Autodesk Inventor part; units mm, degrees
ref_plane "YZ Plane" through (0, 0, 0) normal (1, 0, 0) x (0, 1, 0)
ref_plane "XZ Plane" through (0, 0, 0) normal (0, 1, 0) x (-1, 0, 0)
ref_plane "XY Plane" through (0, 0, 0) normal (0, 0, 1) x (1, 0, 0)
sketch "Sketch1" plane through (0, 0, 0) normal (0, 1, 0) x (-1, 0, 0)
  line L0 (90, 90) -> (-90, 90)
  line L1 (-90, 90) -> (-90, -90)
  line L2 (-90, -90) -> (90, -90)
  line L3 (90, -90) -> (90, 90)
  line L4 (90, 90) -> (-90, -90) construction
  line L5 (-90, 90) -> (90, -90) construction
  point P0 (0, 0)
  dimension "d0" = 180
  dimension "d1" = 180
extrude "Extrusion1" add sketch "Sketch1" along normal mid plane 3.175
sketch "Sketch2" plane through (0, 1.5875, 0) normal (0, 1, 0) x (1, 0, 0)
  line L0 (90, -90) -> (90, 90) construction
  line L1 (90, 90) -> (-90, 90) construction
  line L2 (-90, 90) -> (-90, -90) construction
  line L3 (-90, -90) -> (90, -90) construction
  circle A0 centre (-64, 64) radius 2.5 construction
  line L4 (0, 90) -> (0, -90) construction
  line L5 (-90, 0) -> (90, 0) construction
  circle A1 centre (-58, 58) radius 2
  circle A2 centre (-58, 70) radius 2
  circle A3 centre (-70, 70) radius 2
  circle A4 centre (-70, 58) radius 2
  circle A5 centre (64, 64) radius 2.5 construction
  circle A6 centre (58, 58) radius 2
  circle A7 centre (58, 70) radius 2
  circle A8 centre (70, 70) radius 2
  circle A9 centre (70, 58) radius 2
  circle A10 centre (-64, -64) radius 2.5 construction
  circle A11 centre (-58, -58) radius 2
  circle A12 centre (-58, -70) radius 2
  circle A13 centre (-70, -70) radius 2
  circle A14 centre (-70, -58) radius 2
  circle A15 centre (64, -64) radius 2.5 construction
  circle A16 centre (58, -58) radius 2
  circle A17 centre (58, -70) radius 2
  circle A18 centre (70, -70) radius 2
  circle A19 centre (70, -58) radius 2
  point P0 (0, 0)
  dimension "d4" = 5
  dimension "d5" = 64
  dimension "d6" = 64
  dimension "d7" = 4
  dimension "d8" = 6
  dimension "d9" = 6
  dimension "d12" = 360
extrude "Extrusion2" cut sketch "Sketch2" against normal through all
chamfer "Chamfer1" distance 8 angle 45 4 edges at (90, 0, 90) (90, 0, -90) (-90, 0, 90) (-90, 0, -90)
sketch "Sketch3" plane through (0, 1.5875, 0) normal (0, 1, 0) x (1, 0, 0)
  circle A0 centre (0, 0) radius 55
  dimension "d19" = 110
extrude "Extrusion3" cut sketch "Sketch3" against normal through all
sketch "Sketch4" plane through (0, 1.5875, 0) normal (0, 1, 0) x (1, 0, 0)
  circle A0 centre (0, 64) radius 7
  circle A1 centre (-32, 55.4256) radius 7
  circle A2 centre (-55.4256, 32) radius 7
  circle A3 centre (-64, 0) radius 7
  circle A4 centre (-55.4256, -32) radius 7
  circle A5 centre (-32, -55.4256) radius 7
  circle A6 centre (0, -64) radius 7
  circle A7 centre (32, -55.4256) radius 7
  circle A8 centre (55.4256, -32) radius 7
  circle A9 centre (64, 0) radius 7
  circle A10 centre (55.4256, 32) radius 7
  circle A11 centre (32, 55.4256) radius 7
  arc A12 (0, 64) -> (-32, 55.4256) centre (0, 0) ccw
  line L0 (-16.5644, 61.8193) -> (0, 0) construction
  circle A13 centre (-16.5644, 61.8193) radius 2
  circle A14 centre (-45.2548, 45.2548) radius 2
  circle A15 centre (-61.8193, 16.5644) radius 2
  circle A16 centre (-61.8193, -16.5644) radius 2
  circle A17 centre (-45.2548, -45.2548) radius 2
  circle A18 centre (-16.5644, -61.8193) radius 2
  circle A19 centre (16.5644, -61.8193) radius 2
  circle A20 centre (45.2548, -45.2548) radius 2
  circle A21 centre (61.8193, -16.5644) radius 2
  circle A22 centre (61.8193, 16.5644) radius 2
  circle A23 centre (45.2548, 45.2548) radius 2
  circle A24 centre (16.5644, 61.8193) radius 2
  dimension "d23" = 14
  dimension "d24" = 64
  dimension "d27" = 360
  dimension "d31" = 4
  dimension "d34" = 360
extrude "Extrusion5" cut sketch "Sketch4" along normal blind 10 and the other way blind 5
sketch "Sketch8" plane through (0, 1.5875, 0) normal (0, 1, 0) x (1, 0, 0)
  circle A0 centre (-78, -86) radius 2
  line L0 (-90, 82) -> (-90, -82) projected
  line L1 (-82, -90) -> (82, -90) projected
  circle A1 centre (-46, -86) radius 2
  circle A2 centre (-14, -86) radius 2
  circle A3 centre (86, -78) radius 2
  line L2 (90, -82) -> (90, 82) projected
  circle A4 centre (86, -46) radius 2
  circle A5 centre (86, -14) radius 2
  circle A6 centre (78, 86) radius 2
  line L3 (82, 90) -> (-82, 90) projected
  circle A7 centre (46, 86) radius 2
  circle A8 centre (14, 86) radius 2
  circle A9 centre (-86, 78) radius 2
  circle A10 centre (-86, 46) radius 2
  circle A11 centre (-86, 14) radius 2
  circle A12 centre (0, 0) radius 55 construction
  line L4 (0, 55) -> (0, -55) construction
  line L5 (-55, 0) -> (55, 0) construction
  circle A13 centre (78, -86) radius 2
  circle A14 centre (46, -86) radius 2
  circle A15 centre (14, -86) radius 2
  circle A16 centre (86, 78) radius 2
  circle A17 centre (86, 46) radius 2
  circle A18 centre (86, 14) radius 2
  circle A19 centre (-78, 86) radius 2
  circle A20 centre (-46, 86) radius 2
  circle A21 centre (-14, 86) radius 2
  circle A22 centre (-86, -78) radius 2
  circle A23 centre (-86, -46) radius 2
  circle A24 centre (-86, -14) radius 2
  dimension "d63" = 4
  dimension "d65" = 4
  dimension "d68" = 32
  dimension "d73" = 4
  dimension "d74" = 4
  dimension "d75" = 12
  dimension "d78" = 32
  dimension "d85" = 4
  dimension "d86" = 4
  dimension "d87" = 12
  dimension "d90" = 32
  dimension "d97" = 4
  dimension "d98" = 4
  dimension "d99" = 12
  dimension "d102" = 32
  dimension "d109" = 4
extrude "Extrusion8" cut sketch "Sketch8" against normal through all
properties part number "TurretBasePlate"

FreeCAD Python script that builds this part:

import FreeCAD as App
import Part
import Sketcher

V = App.Vector


def edges_at(feature, points):
    """Names of the edges that pass closest to the given points."""
    edges = feature.Shape.Edges
    near = lambda p: min(range(len(edges)), key=lambda i: edges[i].distToShape(Part.Vertex(*p))[0])
    return sorted({f"Edge{near(p) + 1}" for p in points})

doc = App.newDocument("Part")
body = doc.addObject("PartDesign::Body", "Body")

# Sketch on XZ plane
sketch1 = body.newObject("Sketcher::SketchObject", "Sketch")
sketch1.AttachmentSupport = (doc.getObject("XZ_Plane"), [""])
sketch1.MapMode = "FlatFace"
sketch1.addGeometry(Part.LineSegment(V(-90, -90, 0), V(-90, 90, 0)), False)
sketch1.addGeometry(Part.LineSegment(V(-90, 90, 0), V(90, 90, 0)), False)
sketch1.addGeometry(Part.LineSegment(V(90, 90, 0), V(90, -90, 0)), False)
sketch1.addGeometry(Part.LineSegment(V(90, -90, 0), V(-90, -90, 0)), False)
sketch1.addConstraint(Sketcher.Constraint("Coincident", 0, 2, 1, 1))
sketch1.addConstraint(Sketcher.Constraint("Coincident", 1, 2, 2, 1))
sketch1.addConstraint(Sketcher.Constraint("Coincident", 2, 2, 3, 1))
sketch1.addConstraint(Sketcher.Constraint("Coincident", 3, 2, 0, 1))
sketch1.addConstraint(Sketcher.Constraint("Vertical", 0))
sketch1.addConstraint(Sketcher.Constraint("Horizontal", 1))
sketch1.addConstraint(Sketcher.Constraint("Vertical", 2))
sketch1.addConstraint(Sketcher.Constraint("Horizontal", 3))
sketch1.addConstraint(Sketcher.Constraint("Symmetric", 0, 2, 2, 2, -1, 1))
sketch1.addConstraint(Sketcher.Constraint("Equal", 3, 0))
sketch1.addConstraint(Sketcher.Constraint("DistanceX", 1, 1, 1, 2, 180.0))
pad1 = body.newObject("PartDesign::Pad", "Pad")
pad1.Profile = sketch1
pad1.Length = 3.175
pad1.Midplane = True

# Sketch on XZ plane
sketch2 = body.newObject("Sketcher::SketchObject", "Sketch001")
sketch2.AttachmentSupport = (doc.getObject("XZ_Plane"), [""])
sketch2.MapMode = "FlatFace"
sketch2.AttachmentOffset = App.Placement(V(0, 0, -1.5875), App.Rotation())
sketch2.addGeometry(Part.Circle(V(-58, -58, 0), V(0, 0, 1), 2), False)
sketch2.addGeometry(Part.Circle(V(-58, -70, 0), V(0, 0, 1), 2), False)
sketch2.addGeometry(Part.Circle(V(-70, -70, 0), V(0, 0, 1), 2), False)
sketch2.addGeometry(Part.Circle(V(-70, -58, 0), V(0, 0, 1), 2), False)
sketch2.addGeometry(Part.Circle(V(58, -58, 0), V(0, 0, 1), 2), False)
sketch2.addGeometry(Part.Circle(V(58, -70, 0), V(0, 0, 1), 2), False)
sketch2.addGeometry(Part.Circle(V(70, -70, 0), V(0, 0, 1), 2), False)
sketch2.addGeometry(Part.Circle(V(70, -58, 0), V(0, 0, 1), 2), False)
sketch2.addGeometry(Part.Circle(V(-58, 58, 0), V(0, 0, 1), 2), False)
sketch2.addGeometry(Part.Circle(V(-58, 70, 0), V(0, 0, 1), 2), False)
sketch2.addGeometry(Part.Circle(V(-70, 70, 0), V(0, 0, 1), 2), False)
sketch2.addGeometry(Part.Circle(V(-70, 58, 0), V(0, 0, 1), 2), False)
sketch2.addGeometry(Part.Circle(V(58, 58, 0), V(0, 0, 1), 2), False)
sketch2.addGeometry(Part.Circle(V(58, 70, 0), V(0, 0, 1), 2), False)
sketch2.addGeometry(Part.Circle(V(70, 70, 0), V(0, 0, 1), 2), False)
sketch2.addGeometry(Part.Circle(V(70, 58, 0), V(0, 0, 1), 2), False)
sketch2.addConstraint(Sketcher.Constraint("Equal", 0, 1))
sketch2.addConstraint(Sketcher.Constraint("Equal", 1, 2))
sketch2.addConstraint(Sketcher.Constraint("Equal", 2, 3))
sketch2.addConstraint(Sketcher.Constraint("Equal", 3, 4))
sketch2.addConstraint(Sketcher.Constraint("Equal", 4, 5))
sketch2.addConstraint(Sketcher.Constraint("Equal", 5, 6))
sketch2.addConstraint(Sketcher.Constraint("Equal", 6, 7))
sketch2.addConstraint(Sketcher.Constraint("Equal", 7, 8))
sketch2.addConstraint(Sketcher.Constraint("Equal", 8, 9))
sketch2.addConstraint(Sketcher.Constraint("Equal", 9, 10))
sketch2.addConstraint(Sketcher.Constraint("Equal", 10, 11))
sketch2.addConstraint(Sketcher.Constraint("Equal", 11, 12))
sketch2.addConstraint(Sketcher.Constraint("Equal", 12, 13))
sketch2.addConstraint(Sketcher.Constraint("Equal", 13, 14))
sketch2.addConstraint(Sketcher.Constraint("Equal", 14, 15))
sketch2.addConstraint(Sketcher.Constraint("Symmetric", 4, 3, 8, 3, -1, 1))
sketch2.addConstraint(Sketcher.Constraint("Symmetric", 5, 3, 9, 3, -1, 1))
sketch2.addConstraint(Sketcher.Constraint("Symmetric", 6, 3, 10, 3, -1, 1))
sketch2.addConstraint(Sketcher.Constraint("Symmetric", 7, 3, 11, 3, -1, 1))
sketch2.addConstraint(Sketcher.Constraint("Symmetric", 0, 3, 12, 3, -1, 1))
sketch2.addConstraint(Sketcher.Constraint("Symmetric", 1, 3, 13, 3, -1, 1))
sketch2.addConstraint(Sketcher.Constraint("Symmetric", 2, 3, 14, 3, -1, 1))
sketch2.addConstraint(Sketcher.Constraint("Symmetric", 3, 3, 15, 3, -1, 1))
sketch2.addConstraint(Sketcher.Constraint("Symmetric", 0, 3, 4, 3, -2))
sketch2.addConstraint(Sketcher.Constraint("Symmetric", 1, 3, 5, 3, -2))
sketch2.addConstraint(Sketcher.Constraint("Symmetric", 2, 3, 6, 3, -2))
sketch2.addConstraint(Sketcher.Constraint("Symmetric", 3, 3, 7, 3, -2))
sketch2.addConstraint(Sketcher.Constraint("Horizontal", 1, 3, 2, 3))
sketch2.addConstraint(Sketcher.Constraint("Horizontal", 0, 3, 3, 3))
sketch2.addConstraint(Sketcher.Constraint("Vertical", 0, 3, 1, 3))
sketch2.addConstraint(Sketcher.Constraint("Vertical", 2, 3, 3, 3))
sketch2.addConstraint(Sketcher.Constraint("Diameter", 0, 4.0))
sketch2.addConstraint(Sketcher.Constraint("DistanceX", 0, 3, -1, 1, 58.0))
sketch2.addConstraint(Sketcher.Constraint("DistanceY", 0, 3, -1, 1, 58.0))
sketch2.addConstraint(Sketcher.Constraint("DistanceY", 1, 3, -1, 1, 70.0))
sketch2.addConstraint(Sketcher.Constraint("DistanceX", 2, 3, -1, 1, 70.0))
pocket1 = body.newObject("PartDesign::Pocket", "Pocket")
pocket1.Profile = sketch2
pocket1.Type = "ThroughAll"
pocket1.Reversed = True
doc.recompute()

chamfer = body.newObject("PartDesign::Chamfer", "Chamfer")
chamfer.Base = (pocket1, edges_at(pocket1, [
    (90, 0, 90),
    (90, 0, -90),
    (-90, 0, 90),
    (-90, 0, -90),
]))
chamfer.Size = 8

# Sketch on XZ plane
sketch3 = body.newObject("Sketcher::SketchObject", "Sketch002")
sketch3.AttachmentSupport = (doc.getObject("XZ_Plane"), [""])
sketch3.MapMode = "FlatFace"
sketch3.AttachmentOffset = App.Placement(V(0, 0, -1.5875), App.Rotation())
sketch3.addGeometry(Part.Circle(V(0, 0, 0), V(0, 0, 1), 55), False)
sketch3.addConstraint(Sketcher.Constraint("Coincident", 0, 3, -1, 1))
sketch3.addConstraint(Sketcher.Constraint("Diameter", 0, 110.0))
pocket2 = body.newObject("PartDesign::Pocket", "Pocket001")
pocket2.Profile = sketch3
pocket2.Type = "ThroughAll"
pocket2.Reversed = True

# Sketch on XZ plane
sketch4 = body.newObject("Sketcher::SketchObject", "Sketch003")
sketch4.AttachmentSupport = (doc.getObject("XZ_Plane"), [""])
sketch4.MapMode = "FlatFace"
sketch4.AttachmentOffset = App.Placement(V(0, 0, -1.5875), App.Rotation())
sketch4.addGeometry(Part.Circle(V(0, -64, 0), V(0, 0, 1), 7), False)
sketch4.addGeometry(Part.Circle(V(-32, -55.4, 0), V(0, 0, 1), 7), False)
sketch4.addGeometry(Part.Circle(V(-16.6, -61.8, 0), V(0, 0, 1), 2), False)
sketch4.addGeometry(Part.Circle(V(-55.4, -32, 0), V(0, 0, 1), 7), False)
sketch4.addGeometry(Part.Circle(V(-64, 0, 0), V(0, 0, 1), 7), False)
sketch4.addGeometry(Part.Circle(V(-55.4, 32, 0), V(0, 0, 1), 7), False)
sketch4.addGeometry(Part.Circle(V(-32, 55.4, 0), V(0, 0, 1), 7), False)
sketch4.addGeometry(Part.Circle(V(0, 64, 0), V(0, 0, 1), 7), False)
sketch4.addGeometry(Part.Circle(V(32, 55.4, 0), V(0, 0, 1), 7), False)
sketch4.addGeometry(Part.Circle(V(55.4, 32, 0), V(0, 0, 1), 7), False)
sketch4.addGeometry(Part.Circle(V(64, 0, 0), V(0, 0, 1), 7), False)
sketch4.addGeometry(Part.Circle(V(55.4, -32, 0), V(0, 0, 1), 7), False)
sketch4.addGeometry(Part.Circle(V(32, -55.4, 0), V(0, 0, 1), 7), False)
sketch4.addGeometry(Part.Circle(V(-45.3, -45.3, 0), V(0, 0, 1), 2), False)
sketch4.addGeometry(Part.Circle(V(-61.8, -16.6, 0), V(0, 0, 1), 2), False)
sketch4.addGeometry(Part.Circle(V(-61.8, 16.6, 0), V(0, 0, 1), 2), False)
sketch4.addGeometry(Part.Circle(V(-45.3, 45.3, 0), V(0, 0, 1), 2), False)
sketch4.addGeometry(Part.Circle(V(-16.6, 61.8, 0), V(0, 0, 1), 2), False)
sketch4.addGeometry(Part.Circle(V(16.6, 61.8, 0), V(0, 0, 1), 2), False)
sketch4.addGeometry(Part.Circle(V(45.3, 45.3, 0), V(0, 0, 1), 2), False)
sketch4.addGeometry(Part.Circle(V(61.8, 16.6, 0), V(0, 0, 1), 2), False)
sketch4.addGeometry(Part.Circle(V(61.8, -16.6, 0), V(0, 0, 1), 2), False)
sketch4.addGeometry(Part.Circle(V(45.3, -45.3, 0), V(0, 0, 1), 2), False)
sketch4.addGeometry(Part.Circle(V(16.6, -61.8, 0), V(0, 0, 1), 2), False)
sketch4.addConstraint(Sketcher.Constraint("Equal", 0, 1))
sketch4.addConstraint(Sketcher.Constraint("Equal", 1, 3))
sketch4.addConstraint(Sketcher.Constraint("Equal", 3, 4))
sketch4.addConstraint(Sketcher.Constraint("Equal", 4, 5))
sketch4.addConstraint(Sketcher.Constraint("Equal", 5, 6))
sketch4.addConstraint(Sketcher.Constraint("Equal", 6, 7))
sketch4.addConstraint(Sketcher.Constraint("Equal", 7, 8))
sketch4.addConstraint(Sketcher.Constraint("Equal", 8, 9))
sketch4.addConstraint(Sketcher.Constraint("Equal", 9, 10))
sketch4.addConstraint(Sketcher.Constraint("Equal", 10, 11))
sketch4.addConstraint(Sketcher.Constraint("Equal", 11, 12))
sketch4.addConstraint(Sketcher.Constraint("Equal", 2, 13))
sketch4.addConstraint(Sketcher.Constraint("Equal", 13, 14))
sketch4.addConstraint(Sketcher.Constraint("Equal", 14, 15))
sketch4.addConstraint(Sketcher.Constraint("Equal", 15, 16))
sketch4.addConstraint(Sketcher.Constraint("Equal", 16, 17))
sketch4.addConstraint(Sketcher.Constraint("Equal", 17, 18))
sketch4.addConstraint(Sketcher.Constraint("Equal", 18, 19))
sketch4.addConstraint(Sketcher.Constraint("Equal", 19, 20))
sketch4.addConstraint(Sketcher.Constraint("Equal", 20, 21))
sketch4.addConstraint(Sketcher.Constraint("Equal", 21, 22))
sketch4.addConstraint(Sketcher.Constraint("Equal", 22, 23))
sketch4.addConstraint(Sketcher.Constraint("Symmetric", 0, 3, 7, 3, -1, 1))
sketch4.addConstraint(Sketcher.Constraint("Symmetric", 1, 3, 8, 3, -1, 1))
sketch4.addConstraint(Sketcher.Constraint("Symmetric", 3, 3, 9, 3, -1, 1))
sketch4.addConstraint(Sketcher.Constraint("Symmetric", 4, 3, 10, 3, -1, 1))
sketch4.addConstraint(Sketcher.Constraint("Symmetric", 5, 3, 11, 3, -1, 1))
sketch4.addConstraint(Sketcher.Constraint("Symmetric", 6, 3, 12, 3, -1, 1))
sketch4.addConstraint(Sketcher.Constraint("Symmetric", 2, 3, 18, 3, -1, 1))
sketch4.addConstraint(Sketcher.Constraint("Symmetric", 13, 3, 19, 3, -1, 1))
sketch4.addConstraint(Sketcher.Constraint("Symmetric", 14, 3, 20, 3, -1, 1))
sketch4.addConstraint(Sketcher.Constraint("Symmetric", 15, 3, 21, 3, -1, 1))
sketch4.addConstraint(Sketcher.Constraint("Symmetric", 16, 3, 22, 3, -1, 1))
sketch4.addConstraint(Sketcher.Constraint("Symmetric", 17, 3, 23, 3, -1, 1))
sketch4.addConstraint(Sketcher.Constraint("Symmetric", 6, 3, 8, 3, -2))
sketch4.addConstraint(Sketcher.Constraint("Symmetric", 5, 3, 9, 3, -2))
sketch4.addConstraint(Sketcher.Constraint("Symmetric", 17, 3, 18, 3, -2))
sketch4.addConstraint(Sketcher.Constraint("Symmetric", 16, 3, 19, 3, -2))
sketch4.addConstraint(Sketcher.Constraint("Symmetric", 15, 3, 20, 3, -2))
sketch4.addConstraint(Sketcher.Constraint("PointOnObject", 0, 3, -2))
sketch4.addConstraint(Sketcher.Constraint("PointOnObject", 4, 3, -1))
sketch4.addConstraint(Sketcher.Constraint("Diameter", 0, 14.0))
sketch4.addConstraint(Sketcher.Constraint("Diameter", 2, 4.0))
sketch4.addConstraint(Sketcher.Constraint("DistanceY", 0, 3, -1, 1, 64.0))
sketch4.addConstraint(Sketcher.Constraint("DistanceX", 4, 3, -1, 1, 64.0))
sketch4.addConstraint(Sketcher.Constraint("DistanceY", 3, 3, 5, 3, 64.0))
sketch4.addConstraint(Sketcher.Constraint("DistanceX", 6, 3, 8, 3, 64.0))
sketch4.addConstraint(Sketcher.Constraint("DistanceX", 2, 3, 11, 3, 71.99))
sketch4.addConstraint(Sketcher.Constraint("DistanceY", 2, 3, 6, 3, 117.245))
sketch4.addConstraint(Sketcher.Constraint("DistanceY", 1, 3, -1, 1, 55.4256))
sketch4.addConstraint(Sketcher.Constraint("DistanceX", 2, 3, -1, 1, 16.5644))
sketch4.addConstraint(Sketcher.Constraint("DistanceX", 13, 3, -1, 1, 45.2548))
sketch4.addConstraint(Sketcher.Constraint("DistanceY", 13, 3, -1, 1, 45.2548))
sketch4.addConstraint(Sketcher.Constraint("DistanceX", 14, 3, -1, 1, 61.8193))
sketch4.addConstraint(Sketcher.Constraint("DistanceY", 14, 3, -1, 1, 16.5644))
pocket3 = body.newObject("PartDesign::Pocket", "Pocket002")
pocket3.Profile = sketch4
pocket3.Type = "ThroughAll"
pocket3.Midplane = True

# Sketch on XZ plane
sketch5 = body.newObject("Sketcher::SketchObject", "Sketch004")
sketch5.AttachmentSupport = (doc.getObject("XZ_Plane"), [""])
sketch5.MapMode = "FlatFace"
sketch5.AttachmentOffset = App.Placement(V(0, 0, -1.5875), App.Rotation())
sketch5.addGeometry(Part.Circle(V(-78, 86, 0), V(0, 0, 1), 2), False)
sketch5.addGeometry(Part.Circle(V(-46, 86, 0), V(0, 0, 1), 2), False)
sketch5.addGeometry(Part.Circle(V(-14, 86, 0), V(0, 0, 1), 2), False)
sketch5.addGeometry(Part.Circle(V(86, 78, 0), V(0, 0, 1), 2), False)
sketch5.addGeometry(Part.Circle(V(86, 46, 0), V(0, 0, 1), 2), False)
sketch5.addGeometry(Part.Circle(V(86, 14, 0), V(0, 0, 1), 2), False)
sketch5.addGeometry(Part.Circle(V(78, -86, 0), V(0, 0, 1), 2), False)
sketch5.addGeometry(Part.Circle(V(46, -86, 0), V(0, 0, 1), 2), False)
sketch5.addGeometry(Part.Circle(V(14, -86, 0), V(0, 0, 1), 2), False)
sketch5.addGeometry(Part.Circle(V(-86, -78, 0), V(0, 0, 1), 2), False)
sketch5.addGeometry(Part.Circle(V(-86, -46, 0), V(0, 0, 1), 2), False)
sketch5.addGeometry(Part.Circle(V(-86, -14, 0), V(0, 0, 1), 2), False)
sketch5.addGeometry(Part.Circle(V(78, 86, 0), V(0, 0, 1), 2), False)
sketch5.addGeometry(Part.Circle(V(46, 86, 0), V(0, 0, 1), 2), False)
sketch5.addGeometry(Part.Circle(V(14, 86, 0), V(0, 0, 1), 2), False)
sketch5.addGeometry(Part.Circle(V(86, -78, 0), V(0, 0, 1), 2), False)
sketch5.addGeometry(Part.Circle(V(86, -46, 0), V(0, 0, 1), 2), False)
sketch5.addGeometry(Part.Circle(V(86, -14, 0), V(0, 0, 1), 2), False)
sketch5.addGeometry(Part.Circle(V(-78, -86, 0), V(0, 0, 1), 2), False)
sketch5.addGeometry(Part.Circle(V(-46, -86, 0), V(0, 0, 1), 2), False)
sketch5.addGeometry(Part.Circle(V(-14, -86, 0), V(0, 0, 1), 2), False)
sketch5.addGeometry(Part.Circle(V(-86, 78, 0), V(0, 0, 1), 2), False)
sketch5.addGeometry(Part.Circle(V(-86, 46, 0), V(0, 0, 1), 2), False)
sketch5.addGeometry(Part.Circle(V(-86, 14, 0), V(0, 0, 1), 2), False)
sketch5.addConstraint(Sketcher.Constraint("Equal", 0, 1))
sketch5.addConstraint(Sketcher.Constraint("Equal", 1, 2))
sketch5.addConstraint(Sketcher.Constraint("Equal", 2, 3))
sketch5.addConstraint(Sketcher.Constraint("Equal", 3, 4))
sketch5.addConstraint(Sketcher.Constraint("Equal", 4, 5))
sketch5.addConstraint(Sketcher.Constraint("Equal", 5, 6))
sketch5.addConstraint(Sketcher.Constraint("Equal", 6, 7))
sketch5.addConstraint(Sketcher.Constraint("Equal", 7, 8))
sketch5.addConstraint(Sketcher.Constraint("Equal", 8, 9))
sketch5.addConstraint(Sketcher.Constraint("Equal", 9, 10))
sketch5.addConstraint(Sketcher.Constraint("Equal", 10, 11))
sketch5.addConstraint(Sketcher.Constraint("Equal", 11, 12))
sketch5.addConstraint(Sketcher.Constraint("Equal", 12, 13))
sketch5.addConstraint(Sketcher.Constraint("Equal", 13, 14))
sketch5.addConstraint(Sketcher.Constraint("Equal", 14, 15))
sketch5.addConstraint(Sketcher.Constraint("Equal", 15, 16))
sketch5.addConstraint(Sketcher.Constraint("Equal", 16, 17))
sketch5.addConstraint(Sketcher.Constraint("Equal", 17, 18))
sketch5.addConstraint(Sketcher.Constraint("Equal", 18, 19))
sketch5.addConstraint(Sketcher.Constraint("Equal", 19, 20))
sketch5.addConstraint(Sketcher.Constraint("Equal", 20, 21))
sketch5.addConstraint(Sketcher.Constraint("Equal", 21, 22))
sketch5.addConstraint(Sketcher.Constraint("Equal", 22, 23))
sketch5.addConstraint(Sketcher.Constraint("Symmetric", 0, 3, 6, 3, -1, 1))
sketch5.addConstraint(Sketcher.Constraint("Symmetric", 1, 3, 7, 3, -1, 1))
sketch5.addConstraint(Sketcher.Constraint("Symmetric", 2, 3, 8, 3, -1, 1))
sketch5.addConstraint(Sketcher.Constraint("Symmetric", 3, 3, 9, 3, -1, 1))
sketch5.addConstraint(Sketcher.Constraint("Symmetric", 4, 3, 10, 3, -1, 1))
sketch5.addConstraint(Sketcher.Constraint("Symmetric", 5, 3, 11, 3, -1, 1))
sketch5.addConstraint(Sketcher.Constraint("Symmetric", 12, 3, 18, 3, -1, 1))
sketch5.addConstraint(Sketcher.Constraint("Symmetric", 13, 3, 19, 3, -1, 1))
sketch5.addConstraint(Sketcher.Constraint("Symmetric", 14, 3, 20, 3, -1, 1))
sketch5.addConstraint(Sketcher.Constraint("Symmetric", 15, 3, 21, 3, -1, 1))
sketch5.addConstraint(Sketcher.Constraint("Symmetric", 16, 3, 22, 3, -1, 1))
sketch5.addConstraint(Sketcher.Constraint("Symmetric", 17, 3, 23, 3, -1, 1))
sketch5.addConstraint(Sketcher.Constraint("Symmetric", 0, 3, 12, 3, -2))
sketch5.addConstraint(Sketcher.Constraint("Symmetric", 1, 3, 13, 3, -2))
sketch5.addConstraint(Sketcher.Constraint("Symmetric", 2, 3, 14, 3, -2))
sketch5.addConstraint(Sketcher.Constraint("Symmetric", 9, 3, 15, 3, -2))
sketch5.addConstraint(Sketcher.Constraint("Symmetric", 10, 3, 16, 3, -2))
sketch5.addConstraint(Sketcher.Constraint("Symmetric", 11, 3, 17, 3, -2))
sketch5.addConstraint(Sketcher.Constraint("Horizontal", 0, 3, 1, 3))
sketch5.addConstraint(Sketcher.Constraint("Horizontal", 1, 3, 2, 3))
sketch5.addConstraint(Sketcher.Constraint("Vertical", 3, 3, 4, 3))
sketch5.addConstraint(Sketcher.Constraint("Vertical", 4, 3, 5, 3))
sketch5.addConstraint(Sketcher.Constraint("Diameter", 0, 4.0))
sketch5.addConstraint(Sketcher.Constraint("DistanceX", 0, 3, 1, 3, 32.0))
sketch5.addConstraint(Sketcher.Constraint("DistanceX", 1, 3, 2, 3, 32.0))
sketch5.addConstraint(Sketcher.Constraint("DistanceY", 4, 3, 3, 3, 32.0))
sketch5.addConstraint(Sketcher.Constraint("DistanceY", 5, 3, 4, 3, 32.0))
sketch5.addConstraint(Sketcher.Constraint("DistanceX", 0, 3, -1, 1, 78.0))
sketch5.addConstraint(Sketcher.Constraint("DistanceY", -1, 1, 0, 3, 86.0))
sketch5.addConstraint(Sketcher.Constraint("DistanceX", -1, 1, 3, 3, 86.0))
sketch5.addConstraint(Sketcher.Constraint("DistanceY", -1, 1, 3, 3, 78.0))
pocket4 = body.newObject("PartDesign::Pocket", "Pocket003")
pocket4.Profile = sketch5
pocket4.Type = "ThroughAll"
pocket4.Reversed = True

doc.recompute()
